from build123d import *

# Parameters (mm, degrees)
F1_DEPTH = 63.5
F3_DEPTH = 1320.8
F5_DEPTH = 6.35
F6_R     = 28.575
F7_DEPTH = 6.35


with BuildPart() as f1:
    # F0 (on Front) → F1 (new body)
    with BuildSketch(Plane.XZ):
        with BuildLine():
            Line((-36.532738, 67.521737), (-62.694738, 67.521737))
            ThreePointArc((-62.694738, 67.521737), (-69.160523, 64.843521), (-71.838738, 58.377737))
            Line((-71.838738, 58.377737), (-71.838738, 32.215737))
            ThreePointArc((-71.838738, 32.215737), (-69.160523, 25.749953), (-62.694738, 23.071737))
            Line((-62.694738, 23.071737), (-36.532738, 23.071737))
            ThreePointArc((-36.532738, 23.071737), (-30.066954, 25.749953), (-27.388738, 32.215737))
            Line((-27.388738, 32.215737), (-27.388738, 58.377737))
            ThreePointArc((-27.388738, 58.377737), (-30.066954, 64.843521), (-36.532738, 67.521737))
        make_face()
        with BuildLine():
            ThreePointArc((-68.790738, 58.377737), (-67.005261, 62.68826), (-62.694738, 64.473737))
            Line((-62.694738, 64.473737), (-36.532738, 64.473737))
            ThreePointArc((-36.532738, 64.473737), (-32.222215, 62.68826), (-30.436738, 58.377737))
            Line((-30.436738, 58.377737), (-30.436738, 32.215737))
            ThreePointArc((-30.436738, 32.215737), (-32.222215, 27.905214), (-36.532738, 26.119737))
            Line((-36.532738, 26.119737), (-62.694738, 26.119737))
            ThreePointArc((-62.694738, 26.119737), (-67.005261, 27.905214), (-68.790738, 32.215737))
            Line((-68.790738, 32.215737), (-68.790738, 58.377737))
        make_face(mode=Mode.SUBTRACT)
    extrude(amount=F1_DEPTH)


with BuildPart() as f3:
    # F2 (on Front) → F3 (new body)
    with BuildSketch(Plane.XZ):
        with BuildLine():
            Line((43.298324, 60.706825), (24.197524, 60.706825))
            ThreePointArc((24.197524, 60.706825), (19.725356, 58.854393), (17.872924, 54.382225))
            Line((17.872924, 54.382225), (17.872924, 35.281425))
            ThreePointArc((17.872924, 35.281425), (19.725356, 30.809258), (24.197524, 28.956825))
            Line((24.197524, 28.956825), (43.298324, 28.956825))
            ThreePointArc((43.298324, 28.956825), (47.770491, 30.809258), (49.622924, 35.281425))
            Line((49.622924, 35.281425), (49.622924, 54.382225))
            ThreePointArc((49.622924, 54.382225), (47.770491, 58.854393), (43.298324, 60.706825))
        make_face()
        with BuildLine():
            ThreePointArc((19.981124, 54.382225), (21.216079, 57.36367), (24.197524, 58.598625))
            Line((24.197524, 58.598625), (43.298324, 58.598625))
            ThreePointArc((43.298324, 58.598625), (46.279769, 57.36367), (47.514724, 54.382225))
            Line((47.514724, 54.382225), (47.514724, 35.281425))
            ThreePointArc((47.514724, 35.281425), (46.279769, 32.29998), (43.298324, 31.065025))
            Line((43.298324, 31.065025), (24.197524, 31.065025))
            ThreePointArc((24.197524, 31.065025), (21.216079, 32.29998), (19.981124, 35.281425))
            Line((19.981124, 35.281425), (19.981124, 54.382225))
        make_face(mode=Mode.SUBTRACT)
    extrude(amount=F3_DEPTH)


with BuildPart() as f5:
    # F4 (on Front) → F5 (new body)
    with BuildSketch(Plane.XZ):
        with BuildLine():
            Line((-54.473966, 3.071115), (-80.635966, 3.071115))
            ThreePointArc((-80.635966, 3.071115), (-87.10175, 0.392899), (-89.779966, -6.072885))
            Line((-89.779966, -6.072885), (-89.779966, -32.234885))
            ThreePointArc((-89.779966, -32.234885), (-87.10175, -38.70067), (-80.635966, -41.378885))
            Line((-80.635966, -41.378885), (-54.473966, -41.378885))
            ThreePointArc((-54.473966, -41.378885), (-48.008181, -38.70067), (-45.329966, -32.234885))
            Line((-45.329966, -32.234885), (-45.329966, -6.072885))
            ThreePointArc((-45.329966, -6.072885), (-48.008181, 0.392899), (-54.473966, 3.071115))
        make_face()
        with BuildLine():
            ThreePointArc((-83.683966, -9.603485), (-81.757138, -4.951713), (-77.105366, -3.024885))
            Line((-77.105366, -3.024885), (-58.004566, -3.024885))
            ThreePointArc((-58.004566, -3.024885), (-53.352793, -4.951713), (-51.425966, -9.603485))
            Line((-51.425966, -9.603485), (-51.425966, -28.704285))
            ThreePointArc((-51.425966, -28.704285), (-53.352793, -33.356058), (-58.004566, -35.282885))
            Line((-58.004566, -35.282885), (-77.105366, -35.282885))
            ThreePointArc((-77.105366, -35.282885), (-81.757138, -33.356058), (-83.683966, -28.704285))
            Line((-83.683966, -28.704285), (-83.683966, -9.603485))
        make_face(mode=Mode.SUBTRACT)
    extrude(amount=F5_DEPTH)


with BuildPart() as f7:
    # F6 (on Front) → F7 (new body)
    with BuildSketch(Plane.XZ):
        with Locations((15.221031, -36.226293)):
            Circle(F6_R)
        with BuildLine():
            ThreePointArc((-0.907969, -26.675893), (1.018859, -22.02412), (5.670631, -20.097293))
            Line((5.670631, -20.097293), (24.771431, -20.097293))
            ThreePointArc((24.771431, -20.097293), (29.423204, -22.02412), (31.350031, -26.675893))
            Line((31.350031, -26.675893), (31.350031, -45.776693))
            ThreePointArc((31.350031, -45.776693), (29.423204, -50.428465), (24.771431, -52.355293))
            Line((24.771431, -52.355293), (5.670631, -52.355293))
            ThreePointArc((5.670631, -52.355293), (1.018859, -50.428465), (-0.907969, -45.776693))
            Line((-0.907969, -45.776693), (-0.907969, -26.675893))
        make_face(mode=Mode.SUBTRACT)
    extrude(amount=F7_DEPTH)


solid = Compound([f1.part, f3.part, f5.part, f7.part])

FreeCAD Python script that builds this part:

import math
import FreeCAD as App
import Part
import Sketcher

V = App.Vector
Q = App.Units.Quantity

doc = App.newDocument("Part")
body = doc.addObject("PartDesign::Body", "Body")

sketch1 = body.newObject("Sketcher::SketchObject", "Sketch")
sketch1.AttachmentSupport = (doc.getObject("XZ_Plane"), [""])
sketch1.MapMode = "FlatFace"
sketch1.addGeometry([
    Part.LineSegment(V(-37, 68, 0), V(-63, 68, 0)),
    Part.ArcOfCircle(Part.Circle(V(-63, 58, 0), V(0, 0, 1), 9), math.radians(90), math.radians(180)),
    Part.LineSegment(V(-72, 58, 0), V(-72, 32, 0)),
    Part.ArcOfCircle(Part.Circle(V(-63, 32, 0), V(0, 0, 1), 9), math.radians(180), math.radians(270)),
    Part.LineSegment(V(-63, 23, 0), V(-37, 23, 0)),
    Part.ArcOfCircle(Part.Circle(V(-37, 32, 0), V(0, 0, 1), 9), math.radians(-90), math.radians(0)),
    Part.LineSegment(V(-27, 32, 0), V(-27, 58, 0)),
    Part.ArcOfCircle(Part.Circle(V(-37, 58, 0), V(0, 0, 1), 9), math.radians(0), math.radians(90)),
    Part.LineSegment(V(-69, 32, 0), V(-69, 58, 0)),
    Part.ArcOfCircle(Part.Circle(V(-63, 58, 0), V(0, 0, 1), 6), math.radians(90), math.radians(180)),
    Part.LineSegment(V(-63, 64, 0), V(-37, 64, 0)),
    Part.ArcOfCircle(Part.Circle(V(-37, 58, 0), V(0, 0, 1), 6), math.radians(0), math.radians(90)),
    Part.LineSegment(V(-30, 58, 0), V(-30, 32, 0)),
    Part.ArcOfCircle(Part.Circle(V(-37, 32, 0), V(0, 0, 1), 6), math.radians(-90), math.radians(0)),
    Part.LineSegment(V(-37, 26, 0), V(-63, 26, 0)),
    Part.ArcOfCircle(Part.Circle(V(-63, 32, 0), V(0, 0, 1), 6), math.radians(180), math.radians(270)),
], False)
sketch1.addConstraint([
    Sketcher.Constraint("Tangent", 0, 2, 1, 1),
    Sketcher.Constraint("Tangent", 1, 2, 2, 1),
    Sketcher.Constraint("Tangent", 2, 2, 3, 1),
    Sketcher.Constraint("Tangent", 3, 2, 4, 1),
    Sketcher.Constraint("Tangent", 4, 2, 5, 1),
    Sketcher.Constraint("Tangent", 5, 2, 6, 1),
    Sketcher.Constraint("Tangent", 6, 2, 7, 1),
    Sketcher.Constraint("Tangent", 7, 2, 0, 1),
    Sketcher.Constraint("Tangent", 8, 2, 9, 2),
    Sketcher.Constraint("Tangent", 9, 1, 10, 1),
    Sketcher.Constraint("Tangent", 10, 2, 11, 2),
    Sketcher.Constraint("Tangent", 11, 1, 12, 1),
    Sketcher.Constraint("Tangent", 12, 2, 13, 2),
    Sketcher.Constraint("Tangent", 13, 1, 14, 1),
    Sketcher.Constraint("Tangent", 14, 2, 15, 2),
    Sketcher.Constraint("Tangent", 15, 1, 8, 1),
    Sketcher.Constraint("Horizontal", 0),
    Sketcher.Constraint("Vertical", 2),
    Sketcher.Constraint("Horizontal", 4),
    Sketcher.Constraint("Vertical", 6),
    Sketcher.Constraint("Vertical", 8),
    Sketcher.Constraint("Horizontal", 10),
    Sketcher.Constraint("Vertical", 12),
    Sketcher.Constraint("Horizontal", 14),
    Sketcher.Constraint("Coincident", 9, 3, 1, 3),
    Sketcher.Constraint("Coincident", 11, 3, 7, 3),
    Sketcher.Constraint("Coincident", 13, 3, 5, 3),
    Sketcher.Constraint("Equal", 1, 3),
    Sketcher.Constraint("Equal", 3, 5),
    Sketcher.Constraint("Equal", 5, 7),
    Sketcher.Constraint("Equal", 13, 15),
    Sketcher.Constraint("Equal", 14, 2),
    Sketcher.Constraint("Radius", 1, Q("0.36 in")),
    Sketcher.Constraint("Radius", 9, Q("0.24 in")),
    Sketcher.Constraint("DistanceX", 0, 2, 0, 1, Q("1.03 in")),
    Sketcher.Constraint("DistanceX", 1, 3, -1, 1, Q("62.694738 mm")),
    Sketcher.Constraint("DistanceY", -1, 1, 5, 3, Q("32.215738 mm")),
])
pad1 = body.newObject("PartDesign::Pad", "Pad")
pad1.Profile = sketch1
pad1.Length = Q("2.5 in")
body2 = doc.addObject("PartDesign::Body", "Body001")

sketch2 = body2.newObject("Sketcher::SketchObject", "Sketch001")
sketch2.AttachmentSupport = (doc.getObject("XZ_Plane001"), [""])
sketch2.MapMode = "FlatFace"
sketch2.addGeometry([
    Part.LineSegment(V(43.3, 60.7, 0), V(24.2, 60.7, 0)),
    Part.ArcOfCircle(Part.Circle(V(24.2, 54.4, 0), V(0, 0, 1), 6.3), math.radians(90), math.radians(180)),
    Part.LineSegment(V(17.9, 54.4, 0), V(17.9, 35.3, 0)),
    Part.ArcOfCircle(Part.Circle(V(24.2, 35.3, 0), V(0, 0, 1), 6.3), math.radians(-180), math.radians(-90)),
    Part.LineSegment(V(24.2, 29, 0), V(43.3, 29, 0)),
    Part.ArcOfCircle(Part.Circle(V(43.3, 35.3, 0), V(0, 0, 1), 6.3), math.radians(-90), math.radians(0)),
    Part.LineSegment(V(49.6, 35.3, 0), V(49.6, 54.4, 0)),
    Part.ArcOfCircle(Part.Circle(V(43.3, 54.4, 0), V(0, 0, 1), 6.3), math.radians(0), math.radians(90)),
    Part.LineSegment(V(20, 35.3, 0), V(20, 54.4, 0)),
    Part.ArcOfCircle(Part.Circle(V(24.2, 54.4, 0), V(0, 0, 1), 4.2), math.radians(90), math.radians(180)),
    Part.LineSegment(V(24.2, 58.6, 0), V(43.3, 58.6, 0)),
    Part.ArcOfCircle(Part.Circle(V(43.3, 54.4, 0), V(0, 0, 1), 4.2), math.radians(0), math.radians(90)),
    Part.LineSegment(V(47.5, 54.4, 0), V(47.5, 35.3, 0)),
    Part.ArcOfCircle(Part.Circle(V(43.3, 35.3, 0), V(0, 0, 1), 4.2), math.radians(-90), math.radians(0)),
    Part.LineSegment(V(43.3, 31.1, 0), V(24.2, 31.1, 0)),
    Part.ArcOfCircle(Part.Circle(V(24.2, 35.3, 0), V(0, 0, 1), 4.2), math.radians(-180), math.radians(-90)),
], False)
sketch2.addConstraint([
    Sketcher.Constraint("Tangent", 0, 2, 1, 1),
    Sketcher.Constraint("Tangent", 1, 2, 2, 1),
    Sketcher.Constraint("Tangent", 2, 2, 3, 1),
    Sketcher.Constraint("Tangent", 3, 2, 4, 1),
    Sketcher.Constraint("Tangent", 4, 2, 5, 1),
    Sketcher.Constraint("Tangent", 5, 2, 6, 1),
    Sketcher.Constraint("Tangent", 6, 2, 7, 1),
    Sketcher.Constraint("Tangent", 7, 2, 0, 1),
    Sketcher.Constraint("Tangent", 8, 2, 9, 2),
    Sketcher.Constraint("Tangent", 9, 1, 10, 1),
    Sketcher.Constraint("Tangent", 10, 2, 11, 2),
    Sketcher.Constraint("Tangent", 11, 1, 12, 1),
    Sketcher.Constraint("Tangent", 12, 2, 13, 2),
    Sketcher.Constraint("Tangent", 13, 1, 14, 1),
    Sketcher.Constraint("Tangent", 14, 2, 15, 2),
    Sketcher.Constraint("Tangent", 15, 1, 8, 1),
    Sketcher.Constraint("Horizontal", 0),
    Sketcher.Constraint("Vertical", 2),
    Sketcher.Constraint("Horizontal", 4),
    Sketcher.Constraint("Vertical", 6),
    Sketcher.Constraint("Vertical", 8),
    Sketcher.Constraint("Horizontal", 10),
    Sketcher.Constraint("Vertical", 12),
    Sketcher.Constraint("Horizontal", 14),
    Sketcher.Constraint("Coincident", 9, 3, 1, 3),
    Sketcher.Constraint("Coincident", 11, 3, 7, 3),
    Sketcher.Constraint("Coincident", 13, 3, 5, 3),
    Sketcher.Constraint("Equal", 1, 3),
    Sketcher.Constraint("Equal", 3, 5),
    Sketcher.Constraint("Equal", 5, 7),
    Sketcher.Constraint("Equal", 13, 15),
    Sketcher.Constraint("Equal", 14, 2),
    Sketcher.Constraint("Radius", 1, Q("0.2489999 in")),
    Sketcher.Constraint("Radius", 9, Q("0.166 in")),
    Sketcher.Constraint("DistanceX", 0, 2, 0, 1, Q("0.752 in")),
    Sketcher.Constraint("DistanceX", -1, 1, 1, 3, Q("24.197522 mm")),
    Sketcher.Constraint("DistanceY", -1, 1, 1, 3, Q("54.382227 mm")),
])
pad2 = body2.newObject("PartDesign::Pad", "Pad001")
pad2.Profile = sketch2
pad2.Length = Q("52 in")
body3 = doc.addObject("PartDesign::Body", "Body002")

sketch3 = body3.newObject("Sketcher::SketchObject", "Sketch002")
sketch3.AttachmentSupport = (doc.getObject("XZ_Plane002"), [""])
sketch3.MapMode = "FlatFace"
sketch3.addGeometry([
    Part.LineSegment(V(-54, 3, 0), V(-81, 3, 0)),
    Part.ArcOfCircle(Part.Circle(V(-81, -6, 0), V(0, 0, 1), 9), math.radians(90), math.radians(180)),
    Part.LineSegment(V(-90, -6, 0), V(-90, -32, 0)),
    Part.ArcOfCircle(Part.Circle(V(-81, -32, 0), V(0, 0, 1), 9), math.radians(180), math.radians(270)),
    Part.LineSegment(V(-81, -41, 0), V(-54, -41, 0)),
    Part.ArcOfCircle(Part.Circle(V(-54, -32, 0), V(0, 0, 1), 9), math.radians(-90), math.radians(0)),
    Part.LineSegment(V(-45, -32, 0), V(-45, -6, 0)),
    Part.ArcOfCircle(Part.Circle(V(-54, -6, 0), V(0, 0, 1), 9), math.radians(0), math.radians(90)),
    Part.LineSegment(V(-84, -29, 0), V(-84, -10, 0)),
    Part.ArcOfCircle(Part.Circle(V(-77, -10, 0), V(0, 0, 1), 7), math.radians(90), math.radians(180)),
    Part.LineSegment(V(-77, -3, 0), V(-58, -3, 0)),
    Part.ArcOfCircle(Part.Circle(V(-58, -10, 0), V(0, 0, 1), 7), math.radians(0), math.radians(90)),
    Part.LineSegment(V(-51, -10, 0), V(-51, -29, 0)),
    Part.ArcOfCircle(Part.Circle(V(-58, -29, 0), V(0, 0, 1), 7), math.radians(-90), math.radians(0)),
    Part.LineSegment(V(-58, -35, 0), V(-77, -35, 0)),
    Part.ArcOfCircle(Part.Circle(V(-77, -29, 0), V(0, 0, 1), 7), math.radians(-180), math.radians(-90)),
], False)
sketch3.addConstraint([
    Sketcher.Constraint("Tangent", 0, 2, 1, 1),
    Sketcher.Constraint("Tangent", 1, 2, 2, 1),
    Sketcher.Constraint("Tangent", 2, 2, 3, 1),
    Sketcher.Constraint("Tangent", 3, 2, 4, 1),
    Sketcher.Constraint("Tangent", 4, 2, 5, 1),
    Sketcher.Constraint("Tangent", 5, 2, 6, 1),
    Sketcher.Constraint("Tangent", 6, 2, 7, 1),
    Sketcher.Constraint("Tangent", 7, 2, 0, 1),
    Sketcher.Constraint("Tangent", 8, 2, 9, 2),
    Sketcher.Constraint("Tangent", 9, 1, 10, 1),
    Sketcher.Constraint("Tangent", 10, 2, 11, 2),
    Sketcher.Constraint("Tangent", 11, 1, 12, 1),
    Sketcher.Constraint("Tangent", 12, 2, 13, 2),
    Sketcher.Constraint("Tangent", 13, 1, 14, 1),
    Sketcher.Constraint("Tangent", 14, 2, 15, 2),
    Sketcher.Constraint("Tangent", 15, 1, 8, 1),
    Sketcher.Constraint("Horizontal", 0),
    Sketcher.Constraint("Vertical", 2),
    Sketcher.Constraint("Horizontal", 4),
    Sketcher.Constraint("Vertical", 6),
    Sketcher.Constraint("Vertical", 8),
    Sketcher.Constraint("Horizontal", 10),
    Sketcher.Constraint("Vertical", 12),
    Sketcher.Constraint("Horizontal", 14),
    Sketcher.Constraint("Equal", 1, 3),
    Sketcher.Constraint("Equal", 3, 5),
    Sketcher.Constraint("Equal", 5, 7),
    Sketcher.Constraint("Equal", 9, 11),
    Sketcher.Constraint("Equal", 11, 13),
    Sketcher.Constraint("Equal", 13, 15),
    Sketcher.Constraint("Equal", 4, 2),
    Sketcher.Constraint("Equal", 14, 8),
    Sketcher.Constraint("Radius", 1, Q("0.3600001 in")),
    Sketcher.Constraint("Radius", 9, Q("0.2590001 in")),
    Sketcher.Constraint("DistanceX", 0, 2, 0, 1, Q("1.03 in")),
    Sketcher.Constraint("DistanceX", 10, 1, 10, 2, Q("0.752 in")),
    Sketcher.Constraint("DistanceX", 8, 2, 1, 3, Q("0.1200001 in")),
    Sketcher.Constraint("DistanceY", 1, 3, 9, 1, Q("0.1200001 in")),
    Sketcher.Constraint("DistanceX", 1, 3, -1, 1, Q("80.635965 mm")),
    Sketcher.Constraint("DistanceY", 1, 3, -1, 1, Q("6.072886 mm")),
])
pad3 = body3.newObject("PartDesign::Pad", "Pad002")
pad3.Profile = sketch3
pad3.Length = Q("0.25 in")
body4 = doc.addObject("PartDesign::Body", "Body003")

sketch4 = body4.newObject("Sketcher::SketchObject", "Sketch003")
sketch4.AttachmentSupport = (doc.getObject("XZ_Plane003"), [""])
sketch4.MapMode = "FlatFace"
sketch4.addGeometry([
    Part.Circle(V(15, -36, 0), V(0, 0, 1), 29),
    Part.LineSegment(V(-1, -46, 0), V(-1, -27, 0)),
    Part.ArcOfCircle(Part.Circle(V(6, -27, 0), V(0, 0, 1), 7), math.radians(90), math.radians(180)),
    Part.LineSegment(V(6, -20, 0), V(25, -20, 0)),
    Part.ArcOfCircle(Part.Circle(V(25, -27, 0), V(0, 0, 1), 7), math.radians(0), math.radians(90)),
    Part.LineSegment(V(31, -27, 0), V(31, -46, 0)),
    Part.ArcOfCircle(Part.Circle(V(25, -46, 0), V(0, 0, 1), 7), math.radians(-90), math.radians(0)),
    Part.LineSegment(V(25, -52, 0), V(6, -52, 0)),
    Part.ArcOfCircle(Part.Circle(V(6, -46, 0), V(0, 0, 1), 7), math.radians(-180), math.radians(-90)),
], False)
sketch4.addConstraint([
    Sketcher.Constraint("Tangent", 1, 2, 2, 2),
    Sketcher.Constraint("Tangent", 2, 1, 3, 1),
    Sketcher.Constraint("Tangent", 3, 2, 4, 2),
    Sketcher.Constraint("Tangent", 4, 1, 5, 1),
    Sketcher.Constraint("Tangent", 5, 2, 6, 2),
    Sketcher.Constraint("Tangent", 6, 1, 7, 1),
    Sketcher.Constraint("Tangent", 7, 2, 8, 2),
    Sketcher.Constraint("Tangent", 8, 1, 1, 1),
    Sketcher.Constraint("Vertical", 1),
    Sketcher.Constraint("Horizontal", 3),
    Sketcher.Constraint("Vertical", 5),
    Sketcher.Constraint("Horizontal", 7),
    Sketcher.Constraint("Equal", 2, 4),
    Sketcher.Constraint("Equal", 4, 6),
    Sketcher.Constraint("Equal", 6, 8),
    Sketcher.Constraint("Equal", 7, 1),
    Sketcher.Constraint("Diameter", 0, Q("2.25 in")),
    Sketcher.Constraint("Radius", 2, Q("0.259 in")),
    Sketcher.Constraint("DistanceX", 3, 1, 3, 2, Q("0.752 in")),
    Sketcher.Constraint("DistanceX", 2, 3, 0, 3, Q("0.376 in")),
    Sketcher.Constraint("DistanceY", 0, 3, 2, 3, Q("0.376 in")),
    Sketcher.Constraint("DistanceX", -1, 1, 0, 3, Q("15.221031 mm")),
    Sketcher.Constraint("DistanceY", 4, 3, -1, 1, Q("26.675892 mm")),
])
pad4 = body4.newObject("PartDesign::Pad", "Pad003")
pad4.Profile = sketch4
pad4.Length = Q("0.25 in")

doc.recompute()
